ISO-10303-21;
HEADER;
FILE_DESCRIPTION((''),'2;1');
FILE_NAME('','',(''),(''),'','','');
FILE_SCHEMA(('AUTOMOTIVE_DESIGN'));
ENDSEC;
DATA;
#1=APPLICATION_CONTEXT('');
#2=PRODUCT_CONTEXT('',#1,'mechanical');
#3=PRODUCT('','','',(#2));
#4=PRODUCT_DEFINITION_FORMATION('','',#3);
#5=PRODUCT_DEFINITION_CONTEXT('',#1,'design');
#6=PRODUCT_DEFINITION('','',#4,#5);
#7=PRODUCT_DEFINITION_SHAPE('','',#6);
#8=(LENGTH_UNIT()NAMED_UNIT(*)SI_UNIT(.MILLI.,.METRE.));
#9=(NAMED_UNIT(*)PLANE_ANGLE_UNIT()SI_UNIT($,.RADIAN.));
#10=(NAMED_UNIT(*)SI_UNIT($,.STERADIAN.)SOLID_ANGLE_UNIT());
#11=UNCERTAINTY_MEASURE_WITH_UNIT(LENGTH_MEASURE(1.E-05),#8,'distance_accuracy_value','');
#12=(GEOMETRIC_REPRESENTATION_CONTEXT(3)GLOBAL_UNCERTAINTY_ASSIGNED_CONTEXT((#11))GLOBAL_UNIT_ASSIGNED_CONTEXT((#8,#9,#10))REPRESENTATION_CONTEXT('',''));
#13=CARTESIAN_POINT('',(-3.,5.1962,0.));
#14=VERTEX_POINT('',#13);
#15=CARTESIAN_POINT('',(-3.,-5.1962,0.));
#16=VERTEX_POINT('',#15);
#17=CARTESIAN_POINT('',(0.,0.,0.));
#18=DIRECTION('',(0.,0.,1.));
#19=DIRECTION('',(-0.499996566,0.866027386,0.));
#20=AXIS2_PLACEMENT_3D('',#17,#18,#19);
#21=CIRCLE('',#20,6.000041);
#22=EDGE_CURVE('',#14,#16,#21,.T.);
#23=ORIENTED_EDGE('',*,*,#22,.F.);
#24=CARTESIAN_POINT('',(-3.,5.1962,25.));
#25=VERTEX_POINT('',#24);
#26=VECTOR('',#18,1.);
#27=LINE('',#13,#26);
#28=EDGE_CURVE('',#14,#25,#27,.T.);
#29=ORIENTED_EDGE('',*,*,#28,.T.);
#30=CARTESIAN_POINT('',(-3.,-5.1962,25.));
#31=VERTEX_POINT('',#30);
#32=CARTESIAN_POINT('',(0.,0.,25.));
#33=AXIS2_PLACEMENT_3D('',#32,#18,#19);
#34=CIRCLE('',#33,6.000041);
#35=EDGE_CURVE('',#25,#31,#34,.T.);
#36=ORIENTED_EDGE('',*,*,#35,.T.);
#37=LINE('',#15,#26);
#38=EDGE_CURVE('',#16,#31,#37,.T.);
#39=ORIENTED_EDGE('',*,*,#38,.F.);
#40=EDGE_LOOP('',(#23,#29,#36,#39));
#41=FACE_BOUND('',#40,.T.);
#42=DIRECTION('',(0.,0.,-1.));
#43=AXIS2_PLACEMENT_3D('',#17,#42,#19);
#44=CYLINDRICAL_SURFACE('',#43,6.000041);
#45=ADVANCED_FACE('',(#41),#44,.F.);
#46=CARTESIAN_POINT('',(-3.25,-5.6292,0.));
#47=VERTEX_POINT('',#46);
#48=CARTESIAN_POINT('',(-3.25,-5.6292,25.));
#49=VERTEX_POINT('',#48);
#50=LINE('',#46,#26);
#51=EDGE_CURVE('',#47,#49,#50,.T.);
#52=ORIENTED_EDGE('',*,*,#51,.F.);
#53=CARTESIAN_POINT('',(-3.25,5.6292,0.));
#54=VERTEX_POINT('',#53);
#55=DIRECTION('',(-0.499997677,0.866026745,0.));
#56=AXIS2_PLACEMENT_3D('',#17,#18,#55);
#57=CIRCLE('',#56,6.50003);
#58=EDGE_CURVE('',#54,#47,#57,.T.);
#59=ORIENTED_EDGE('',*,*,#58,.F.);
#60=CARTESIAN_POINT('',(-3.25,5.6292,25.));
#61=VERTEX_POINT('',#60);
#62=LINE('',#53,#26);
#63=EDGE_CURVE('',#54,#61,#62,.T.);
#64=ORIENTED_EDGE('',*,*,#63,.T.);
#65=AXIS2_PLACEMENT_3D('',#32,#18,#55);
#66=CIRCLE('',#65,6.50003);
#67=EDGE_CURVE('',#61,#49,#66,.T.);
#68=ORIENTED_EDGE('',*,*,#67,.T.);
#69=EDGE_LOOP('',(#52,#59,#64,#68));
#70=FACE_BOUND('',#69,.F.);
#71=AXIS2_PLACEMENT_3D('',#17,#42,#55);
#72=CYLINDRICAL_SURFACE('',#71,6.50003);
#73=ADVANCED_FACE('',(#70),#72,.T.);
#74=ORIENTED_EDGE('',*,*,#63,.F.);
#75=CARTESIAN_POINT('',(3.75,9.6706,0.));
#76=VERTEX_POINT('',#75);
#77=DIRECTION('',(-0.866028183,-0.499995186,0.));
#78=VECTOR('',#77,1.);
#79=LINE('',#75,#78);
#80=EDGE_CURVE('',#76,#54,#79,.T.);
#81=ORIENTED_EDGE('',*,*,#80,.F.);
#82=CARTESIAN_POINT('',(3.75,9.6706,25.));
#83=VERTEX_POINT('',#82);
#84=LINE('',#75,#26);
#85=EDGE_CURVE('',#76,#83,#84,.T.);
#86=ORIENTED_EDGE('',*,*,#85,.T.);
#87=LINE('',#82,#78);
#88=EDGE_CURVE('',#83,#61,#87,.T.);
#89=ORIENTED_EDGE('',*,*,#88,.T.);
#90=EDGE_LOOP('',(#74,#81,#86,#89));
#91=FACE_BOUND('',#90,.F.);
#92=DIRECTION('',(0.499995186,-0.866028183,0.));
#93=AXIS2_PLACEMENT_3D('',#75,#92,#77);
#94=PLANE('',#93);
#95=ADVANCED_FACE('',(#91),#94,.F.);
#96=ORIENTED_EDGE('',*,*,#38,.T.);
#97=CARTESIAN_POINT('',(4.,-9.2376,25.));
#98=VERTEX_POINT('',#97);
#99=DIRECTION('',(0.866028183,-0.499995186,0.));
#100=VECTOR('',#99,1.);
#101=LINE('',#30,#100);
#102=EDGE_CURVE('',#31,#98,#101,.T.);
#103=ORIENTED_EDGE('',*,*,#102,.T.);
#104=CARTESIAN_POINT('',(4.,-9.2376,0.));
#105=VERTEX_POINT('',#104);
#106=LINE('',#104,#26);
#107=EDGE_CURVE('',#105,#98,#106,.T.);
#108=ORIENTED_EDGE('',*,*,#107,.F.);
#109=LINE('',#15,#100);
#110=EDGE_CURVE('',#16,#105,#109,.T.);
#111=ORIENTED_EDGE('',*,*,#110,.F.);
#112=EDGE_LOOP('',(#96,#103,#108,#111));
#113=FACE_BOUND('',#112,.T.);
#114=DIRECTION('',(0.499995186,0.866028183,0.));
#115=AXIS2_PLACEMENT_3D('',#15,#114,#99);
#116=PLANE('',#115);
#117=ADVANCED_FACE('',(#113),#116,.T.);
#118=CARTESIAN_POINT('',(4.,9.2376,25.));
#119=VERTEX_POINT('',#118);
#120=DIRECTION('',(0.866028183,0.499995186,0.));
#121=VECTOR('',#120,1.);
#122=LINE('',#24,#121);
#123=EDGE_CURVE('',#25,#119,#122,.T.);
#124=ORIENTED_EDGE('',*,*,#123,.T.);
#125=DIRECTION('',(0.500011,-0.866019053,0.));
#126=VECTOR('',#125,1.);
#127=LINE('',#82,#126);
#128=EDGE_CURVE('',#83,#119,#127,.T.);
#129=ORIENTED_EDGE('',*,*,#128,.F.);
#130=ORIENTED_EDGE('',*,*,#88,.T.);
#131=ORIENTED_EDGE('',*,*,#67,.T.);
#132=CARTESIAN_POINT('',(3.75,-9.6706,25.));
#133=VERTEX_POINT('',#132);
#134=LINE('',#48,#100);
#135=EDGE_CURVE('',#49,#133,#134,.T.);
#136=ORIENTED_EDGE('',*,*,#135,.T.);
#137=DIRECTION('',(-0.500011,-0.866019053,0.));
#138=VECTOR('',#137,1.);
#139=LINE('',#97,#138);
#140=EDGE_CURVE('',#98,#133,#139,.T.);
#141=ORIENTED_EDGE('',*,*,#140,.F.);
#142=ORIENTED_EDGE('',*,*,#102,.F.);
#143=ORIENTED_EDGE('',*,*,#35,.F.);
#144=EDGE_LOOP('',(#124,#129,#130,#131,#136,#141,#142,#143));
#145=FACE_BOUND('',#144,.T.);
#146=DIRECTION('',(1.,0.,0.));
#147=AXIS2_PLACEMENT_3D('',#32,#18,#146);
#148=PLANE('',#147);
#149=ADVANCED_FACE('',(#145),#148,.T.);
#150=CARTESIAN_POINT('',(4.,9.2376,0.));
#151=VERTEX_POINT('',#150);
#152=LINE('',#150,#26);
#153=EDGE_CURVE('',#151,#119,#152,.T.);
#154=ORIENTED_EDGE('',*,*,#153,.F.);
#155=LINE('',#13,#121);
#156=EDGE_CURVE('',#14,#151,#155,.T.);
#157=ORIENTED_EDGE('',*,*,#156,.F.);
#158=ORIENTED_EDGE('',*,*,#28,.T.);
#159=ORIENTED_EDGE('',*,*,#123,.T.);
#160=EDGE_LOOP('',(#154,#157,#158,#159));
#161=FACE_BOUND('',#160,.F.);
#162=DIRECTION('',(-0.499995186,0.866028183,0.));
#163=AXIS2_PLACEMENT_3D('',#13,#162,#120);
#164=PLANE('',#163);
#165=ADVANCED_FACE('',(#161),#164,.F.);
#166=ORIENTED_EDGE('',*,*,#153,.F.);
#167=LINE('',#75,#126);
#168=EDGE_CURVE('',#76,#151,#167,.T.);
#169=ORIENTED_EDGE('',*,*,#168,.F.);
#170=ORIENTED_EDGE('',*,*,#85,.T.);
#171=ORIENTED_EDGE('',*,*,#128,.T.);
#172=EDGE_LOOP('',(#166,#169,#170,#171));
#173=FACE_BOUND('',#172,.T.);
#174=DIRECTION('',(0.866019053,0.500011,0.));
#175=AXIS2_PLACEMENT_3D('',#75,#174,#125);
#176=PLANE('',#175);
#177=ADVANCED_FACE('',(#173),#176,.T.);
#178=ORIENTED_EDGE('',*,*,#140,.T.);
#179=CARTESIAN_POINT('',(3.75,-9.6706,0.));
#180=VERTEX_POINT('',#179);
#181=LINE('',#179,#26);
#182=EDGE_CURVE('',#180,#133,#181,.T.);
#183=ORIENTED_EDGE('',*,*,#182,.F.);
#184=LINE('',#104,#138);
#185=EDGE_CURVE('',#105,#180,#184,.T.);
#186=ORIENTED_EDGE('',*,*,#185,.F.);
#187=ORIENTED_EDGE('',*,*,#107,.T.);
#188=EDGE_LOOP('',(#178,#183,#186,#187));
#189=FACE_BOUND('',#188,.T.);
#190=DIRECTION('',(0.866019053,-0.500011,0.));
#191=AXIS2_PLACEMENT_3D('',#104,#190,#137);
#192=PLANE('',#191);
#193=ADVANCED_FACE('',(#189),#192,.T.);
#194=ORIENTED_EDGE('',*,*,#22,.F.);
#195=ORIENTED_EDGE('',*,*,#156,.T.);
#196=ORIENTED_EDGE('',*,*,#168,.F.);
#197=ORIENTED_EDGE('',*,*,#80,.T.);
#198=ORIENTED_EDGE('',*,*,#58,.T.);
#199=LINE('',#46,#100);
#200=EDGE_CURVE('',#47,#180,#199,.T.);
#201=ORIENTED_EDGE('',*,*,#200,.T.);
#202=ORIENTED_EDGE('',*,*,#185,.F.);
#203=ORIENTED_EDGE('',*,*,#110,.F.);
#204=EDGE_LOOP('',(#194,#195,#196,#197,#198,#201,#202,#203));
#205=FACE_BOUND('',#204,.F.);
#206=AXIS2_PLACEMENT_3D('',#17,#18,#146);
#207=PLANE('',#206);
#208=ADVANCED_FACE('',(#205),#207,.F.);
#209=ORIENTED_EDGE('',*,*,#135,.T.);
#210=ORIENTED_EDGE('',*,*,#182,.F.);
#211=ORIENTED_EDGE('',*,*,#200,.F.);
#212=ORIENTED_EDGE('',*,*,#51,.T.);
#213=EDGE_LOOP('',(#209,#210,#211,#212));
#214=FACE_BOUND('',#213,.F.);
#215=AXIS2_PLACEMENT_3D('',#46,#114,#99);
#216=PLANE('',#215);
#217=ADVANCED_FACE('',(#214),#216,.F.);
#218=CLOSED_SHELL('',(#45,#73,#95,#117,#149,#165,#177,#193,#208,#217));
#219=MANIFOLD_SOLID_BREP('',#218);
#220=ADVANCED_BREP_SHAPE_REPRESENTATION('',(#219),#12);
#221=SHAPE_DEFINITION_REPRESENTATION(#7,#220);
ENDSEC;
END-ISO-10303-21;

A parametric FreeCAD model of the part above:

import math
import FreeCAD as App
import Part
import Sketcher
Q = App.Units.Quantity

doc = App.newDocument("Part")
body = doc.addObject("PartDesign::Body", "Body")

sketch1 = doc.addObject("Sketcher::SketchObject", "Sketch")
body.addObject(sketch1)
sketch1.AttachmentSupport = (doc.XY_Plane, [""])
sketch1.MapMode = "FlatFace"
sketch1.addGeometry([
    Part.ArcOfCircle(Part.Circle(App.Vector(0, 0, 0), App.Vector(0, 0, 1), 6), math.radians(120), math.radians(240)),
    Part.LineSegment(App.Vector(-3, 5.2, 0), App.Vector(4, 9.24, 0)),
    Part.LineSegment(App.Vector(4, 9.24, 0), App.Vector(3.75, 9.67, 0)),
    Part.LineSegment(App.Vector(3.75, 9.67, 0), App.Vector(-3.25, 5.63, 0)),
    Part.ArcOfCircle(Part.Circle(App.Vector(0, 0, 0), App.Vector(0, 0, 1), 6.5), math.radians(120), math.radians(240)),
    Part.LineSegment(App.Vector(-3.25, -5.63, 0), App.Vector(3.75, -9.67, 0)),
    Part.LineSegment(App.Vector(3.75, -9.67, 0), App.Vector(4, -9.24, 0)),
    Part.LineSegment(App.Vector(4, -9.24, 0), App.Vector(-3, -5.2, 0)),
], False)
sketch1.addConstraint([
    Sketcher.Constraint("Tangent", 0, 1, 1, 1),
    Sketcher.Constraint("Coincident", 1, 2, 2, 1),
    Sketcher.Constraint("Coincident", 2, 2, 3, 1),
    Sketcher.Constraint("Tangent", 3, 2, 4, 1),
    Sketcher.Constraint("Tangent", 4, 2, 5, 1),
    Sketcher.Constraint("Coincident", 5, 2, 6, 1),
    Sketcher.Constraint("Coincident", 6, 2, 7, 1),
    Sketcher.Constraint("Tangent", 7, 2, 0, 2),
    Sketcher.Constraint("Coincident", 0, 3, -1, 1),
    Sketcher.Constraint("Coincident", 4, 3, -1, 1),
    Sketcher.Constraint("Symmetric", 2, 2, 5, 2, -1),
    Sketcher.Constraint("Symmetric", 1, 2, 6, 2, -1),
    Sketcher.Constraint("Perpendicular", 1, 2),
    Sketcher.Constraint("Perpendicular", 2, 3),
    Sketcher.Constraint("Radius", 0, Q("6 mm")),
    Sketcher.Constraint("DistanceX", -1, 1, 1, 2, Q("4 mm")),
    Sketcher.Constraint("Distance", 2, Q("0.5 mm")),
    Sketcher.Constraint("Angle", 1, Q("29.9997 deg")),
])
pad1 = doc.addObject("PartDesign::Pad", "Pad")
body.addObject(pad1)
pad1.Profile = sketch1
pad1.Length = 25

doc.recompute()
